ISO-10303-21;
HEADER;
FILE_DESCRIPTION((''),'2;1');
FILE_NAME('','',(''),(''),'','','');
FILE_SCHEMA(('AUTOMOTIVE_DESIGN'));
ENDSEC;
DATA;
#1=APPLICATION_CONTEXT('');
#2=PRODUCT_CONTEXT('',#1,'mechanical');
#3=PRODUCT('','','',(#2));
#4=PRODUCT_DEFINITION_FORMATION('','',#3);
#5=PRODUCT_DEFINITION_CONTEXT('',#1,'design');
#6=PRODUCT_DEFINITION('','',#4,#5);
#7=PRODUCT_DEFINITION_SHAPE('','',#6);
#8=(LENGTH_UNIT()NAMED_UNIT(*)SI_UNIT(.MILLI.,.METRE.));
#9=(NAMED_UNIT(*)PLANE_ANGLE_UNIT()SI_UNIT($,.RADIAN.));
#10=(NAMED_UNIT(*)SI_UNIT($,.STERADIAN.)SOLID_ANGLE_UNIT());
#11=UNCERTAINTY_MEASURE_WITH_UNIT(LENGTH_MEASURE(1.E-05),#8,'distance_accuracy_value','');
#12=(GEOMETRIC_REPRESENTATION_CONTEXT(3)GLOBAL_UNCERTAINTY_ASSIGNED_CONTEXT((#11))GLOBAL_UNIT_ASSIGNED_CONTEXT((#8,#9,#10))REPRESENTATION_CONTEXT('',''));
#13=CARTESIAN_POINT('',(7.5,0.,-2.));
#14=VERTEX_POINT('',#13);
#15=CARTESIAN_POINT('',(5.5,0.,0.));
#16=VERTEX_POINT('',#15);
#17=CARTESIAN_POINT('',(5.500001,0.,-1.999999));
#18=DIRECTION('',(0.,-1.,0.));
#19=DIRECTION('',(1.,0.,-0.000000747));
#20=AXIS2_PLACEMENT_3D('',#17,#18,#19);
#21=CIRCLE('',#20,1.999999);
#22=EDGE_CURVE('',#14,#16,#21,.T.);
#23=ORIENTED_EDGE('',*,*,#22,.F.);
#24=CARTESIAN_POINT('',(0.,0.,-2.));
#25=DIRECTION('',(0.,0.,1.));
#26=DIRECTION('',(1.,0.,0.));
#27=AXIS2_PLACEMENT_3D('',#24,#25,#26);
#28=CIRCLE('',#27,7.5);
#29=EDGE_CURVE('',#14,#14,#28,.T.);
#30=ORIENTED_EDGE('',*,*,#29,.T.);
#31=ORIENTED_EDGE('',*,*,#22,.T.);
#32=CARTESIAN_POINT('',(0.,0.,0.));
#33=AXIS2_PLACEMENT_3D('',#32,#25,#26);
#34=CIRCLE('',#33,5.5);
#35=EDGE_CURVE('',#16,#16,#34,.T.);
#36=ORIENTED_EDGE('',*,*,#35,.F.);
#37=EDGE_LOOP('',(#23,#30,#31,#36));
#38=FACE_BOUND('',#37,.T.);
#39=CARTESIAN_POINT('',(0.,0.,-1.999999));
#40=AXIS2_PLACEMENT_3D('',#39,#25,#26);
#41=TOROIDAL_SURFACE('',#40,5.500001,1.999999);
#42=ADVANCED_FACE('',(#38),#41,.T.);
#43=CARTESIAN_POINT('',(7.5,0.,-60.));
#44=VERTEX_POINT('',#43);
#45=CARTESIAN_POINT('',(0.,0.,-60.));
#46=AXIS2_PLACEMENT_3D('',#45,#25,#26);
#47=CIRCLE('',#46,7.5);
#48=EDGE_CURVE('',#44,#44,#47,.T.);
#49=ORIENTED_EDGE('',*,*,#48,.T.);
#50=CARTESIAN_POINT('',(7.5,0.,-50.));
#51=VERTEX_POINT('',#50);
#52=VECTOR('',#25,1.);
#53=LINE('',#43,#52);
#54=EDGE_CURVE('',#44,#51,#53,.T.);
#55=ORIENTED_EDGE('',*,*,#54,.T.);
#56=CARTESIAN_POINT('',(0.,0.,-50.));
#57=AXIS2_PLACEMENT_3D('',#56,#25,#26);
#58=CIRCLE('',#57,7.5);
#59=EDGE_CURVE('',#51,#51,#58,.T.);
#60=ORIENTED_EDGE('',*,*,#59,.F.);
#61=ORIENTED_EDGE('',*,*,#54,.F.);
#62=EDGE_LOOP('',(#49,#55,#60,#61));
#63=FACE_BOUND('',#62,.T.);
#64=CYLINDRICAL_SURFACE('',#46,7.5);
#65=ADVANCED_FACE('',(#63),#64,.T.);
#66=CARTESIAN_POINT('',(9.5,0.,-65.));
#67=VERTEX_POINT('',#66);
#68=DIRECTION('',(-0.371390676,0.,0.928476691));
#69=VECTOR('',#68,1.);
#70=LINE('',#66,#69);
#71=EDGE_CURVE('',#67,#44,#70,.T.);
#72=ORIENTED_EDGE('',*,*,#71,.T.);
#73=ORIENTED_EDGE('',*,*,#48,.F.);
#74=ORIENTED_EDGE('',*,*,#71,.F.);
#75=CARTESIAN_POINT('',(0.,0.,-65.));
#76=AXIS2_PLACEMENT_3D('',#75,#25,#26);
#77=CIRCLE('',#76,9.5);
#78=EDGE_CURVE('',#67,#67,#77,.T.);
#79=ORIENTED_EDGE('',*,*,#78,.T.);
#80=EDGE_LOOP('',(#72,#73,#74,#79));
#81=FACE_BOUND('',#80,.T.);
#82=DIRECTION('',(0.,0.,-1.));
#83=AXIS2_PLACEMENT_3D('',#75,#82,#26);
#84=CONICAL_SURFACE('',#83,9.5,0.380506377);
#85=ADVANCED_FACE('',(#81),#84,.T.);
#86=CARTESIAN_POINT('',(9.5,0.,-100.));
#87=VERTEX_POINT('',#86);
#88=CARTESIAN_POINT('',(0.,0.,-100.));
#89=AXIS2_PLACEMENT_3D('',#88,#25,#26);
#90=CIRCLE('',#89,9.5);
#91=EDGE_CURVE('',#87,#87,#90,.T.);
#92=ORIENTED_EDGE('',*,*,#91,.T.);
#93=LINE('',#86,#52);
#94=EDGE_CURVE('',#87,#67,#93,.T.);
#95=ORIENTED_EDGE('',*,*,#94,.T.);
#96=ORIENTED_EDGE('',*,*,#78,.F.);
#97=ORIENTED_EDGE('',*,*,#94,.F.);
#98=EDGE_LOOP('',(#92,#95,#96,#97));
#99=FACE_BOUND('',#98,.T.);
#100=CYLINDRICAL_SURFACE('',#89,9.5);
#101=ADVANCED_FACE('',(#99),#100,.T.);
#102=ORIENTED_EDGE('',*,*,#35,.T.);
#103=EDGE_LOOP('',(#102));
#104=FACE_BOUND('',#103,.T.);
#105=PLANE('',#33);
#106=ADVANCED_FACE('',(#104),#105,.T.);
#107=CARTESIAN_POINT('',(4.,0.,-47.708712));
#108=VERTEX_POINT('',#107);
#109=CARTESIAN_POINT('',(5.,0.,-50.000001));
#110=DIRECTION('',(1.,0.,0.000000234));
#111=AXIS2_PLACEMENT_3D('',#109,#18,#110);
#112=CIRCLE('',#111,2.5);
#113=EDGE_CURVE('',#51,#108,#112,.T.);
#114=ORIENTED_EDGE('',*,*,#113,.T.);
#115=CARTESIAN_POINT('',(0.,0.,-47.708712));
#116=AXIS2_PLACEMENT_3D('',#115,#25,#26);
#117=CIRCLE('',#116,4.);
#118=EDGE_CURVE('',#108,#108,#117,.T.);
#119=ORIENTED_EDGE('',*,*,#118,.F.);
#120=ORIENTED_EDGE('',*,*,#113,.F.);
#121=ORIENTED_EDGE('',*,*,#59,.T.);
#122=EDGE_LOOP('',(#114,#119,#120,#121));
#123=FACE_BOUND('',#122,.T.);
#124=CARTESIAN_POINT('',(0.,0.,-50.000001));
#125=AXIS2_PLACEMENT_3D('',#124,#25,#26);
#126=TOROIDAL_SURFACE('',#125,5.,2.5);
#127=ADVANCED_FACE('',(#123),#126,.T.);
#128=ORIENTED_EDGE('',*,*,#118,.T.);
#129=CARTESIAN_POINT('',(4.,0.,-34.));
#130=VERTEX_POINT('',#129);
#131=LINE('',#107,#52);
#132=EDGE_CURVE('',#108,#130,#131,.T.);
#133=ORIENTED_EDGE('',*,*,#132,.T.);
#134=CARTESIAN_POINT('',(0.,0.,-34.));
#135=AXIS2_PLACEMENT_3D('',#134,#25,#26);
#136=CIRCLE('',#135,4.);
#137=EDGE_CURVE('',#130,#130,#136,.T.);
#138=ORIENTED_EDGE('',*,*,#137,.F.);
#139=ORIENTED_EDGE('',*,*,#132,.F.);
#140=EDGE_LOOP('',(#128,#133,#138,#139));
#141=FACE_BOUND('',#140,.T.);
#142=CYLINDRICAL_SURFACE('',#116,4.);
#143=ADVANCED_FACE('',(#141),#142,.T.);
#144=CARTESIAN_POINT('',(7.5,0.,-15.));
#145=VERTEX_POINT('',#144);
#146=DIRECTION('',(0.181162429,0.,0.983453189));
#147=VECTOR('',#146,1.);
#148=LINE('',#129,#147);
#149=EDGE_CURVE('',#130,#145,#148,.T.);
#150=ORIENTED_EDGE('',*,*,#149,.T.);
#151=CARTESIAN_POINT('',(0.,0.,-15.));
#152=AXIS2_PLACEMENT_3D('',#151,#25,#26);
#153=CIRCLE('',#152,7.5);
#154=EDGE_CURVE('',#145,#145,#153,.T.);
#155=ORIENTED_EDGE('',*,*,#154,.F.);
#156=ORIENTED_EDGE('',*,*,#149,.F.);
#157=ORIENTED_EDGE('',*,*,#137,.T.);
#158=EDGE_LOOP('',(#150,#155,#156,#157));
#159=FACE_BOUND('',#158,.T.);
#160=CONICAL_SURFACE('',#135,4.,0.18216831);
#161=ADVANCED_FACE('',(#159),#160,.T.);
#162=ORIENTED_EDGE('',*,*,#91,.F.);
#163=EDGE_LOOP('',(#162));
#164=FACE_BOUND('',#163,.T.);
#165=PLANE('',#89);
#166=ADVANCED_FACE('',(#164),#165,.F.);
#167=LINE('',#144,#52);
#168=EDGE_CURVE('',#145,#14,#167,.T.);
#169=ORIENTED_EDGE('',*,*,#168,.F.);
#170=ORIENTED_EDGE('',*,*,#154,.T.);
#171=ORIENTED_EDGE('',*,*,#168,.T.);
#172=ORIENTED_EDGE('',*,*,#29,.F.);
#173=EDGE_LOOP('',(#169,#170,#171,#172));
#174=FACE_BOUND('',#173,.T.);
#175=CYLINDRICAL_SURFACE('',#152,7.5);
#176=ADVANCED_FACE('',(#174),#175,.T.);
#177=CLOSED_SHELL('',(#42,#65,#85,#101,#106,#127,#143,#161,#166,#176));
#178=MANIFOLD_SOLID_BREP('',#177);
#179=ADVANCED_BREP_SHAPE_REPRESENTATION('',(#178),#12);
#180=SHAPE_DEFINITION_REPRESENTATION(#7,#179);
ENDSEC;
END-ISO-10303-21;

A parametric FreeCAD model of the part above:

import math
import FreeCAD as App
import Part
import Sketcher
from FreeCAD import Vector
Q = App.Units.Quantity

doc = App.newDocument("Part")
body = doc.addObject("PartDesign::Body", "Body")

sketch1 = body.newObject("Sketcher::SketchObject", "Sketch")
sketch1.AttachmentSupport = (doc.getObject("XZ_Plane"), [""])
sketch1.MapMode = "FlatFace"
sketch1.addGeometry(Part.LineSegment(Vector(5.5, 0, 0), Vector(0, 0, 0)), False)
sketch1.addGeometry(Part.LineSegment(Vector(0, 0, 0), Vector(0, -100, 0)), False)
sketch1.addGeometry(Part.LineSegment(Vector(0, -100, 0), Vector(9.5, -100, 0)), False)
sketch1.addGeometry(Part.LineSegment(Vector(9.5, -100, 0), Vector(9.5, -65, 0)), False)
sketch1.addGeometry(Part.LineSegment(Vector(9.5, -65, 0), Vector(7.5, -60, 0)), False)
sketch1.addGeometry(Part.LineSegment(Vector(7.5, -60, 0), Vector(7.5, -50, 0)), False)
sketch1.addGeometry(Part.ArcOfCircle(Part.Circle(Vector(5, -50.000001, 0), Vector(0, 0, 1), 2.5), math.radians(0.000013), math.radians(113.578162)), False)
sketch1.addGeometry(Part.LineSegment(Vector(4, -47.708712, 0), Vector(4, -34, 0)), False)
sketch1.addGeometry(Part.LineSegment(Vector(4, -34, 0), Vector(7.5, -15, 0)), False)
sketch1.addGeometry(Part.LineSegment(Vector(7.5, -15, 0), Vector(7.5, -2, 0)), False)
sketch1.addGeometry(Part.ArcOfCircle(Part.Circle(Vector(5.500001, -1.999999, 0), Vector(0, 0, 1), 1.999999), math.radians(-0.000043), math.radians(90.000043)), False)
sketch1.addConstraint(Sketcher.Constraint("Coincident", 0, 2, 1, 1))
sketch1.addConstraint(Sketcher.Constraint("Coincident", 1, 2, 2, 1))
sketch1.addConstraint(Sketcher.Constraint("Coincident", 2, 2, 3, 1))
sketch1.addConstraint(Sketcher.Constraint("Coincident", 3, 2, 4, 1))
sketch1.addConstraint(Sketcher.Constraint("Coincident", 4, 2, 5, 1))
sketch1.addConstraint(Sketcher.Constraint("Tangent", 5, 2, 6, 1))
sketch1.addConstraint(Sketcher.Constraint("Coincident", 6, 2, 7, 1))
sketch1.addConstraint(Sketcher.Constraint("Coincident", 7, 2, 8, 1))
sketch1.addConstraint(Sketcher.Constraint("Coincident", 8, 2, 9, 1))
sketch1.addConstraint(Sketcher.Constraint("Tangent", 9, 2, 10, 1))
sketch1.addConstraint(Sketcher.Constraint("Tangent", 10, 2, 0, 1))
sketch1.addConstraint(Sketcher.Constraint("Horizontal", 0))
sketch1.addConstraint(Sketcher.Constraint("Vertical", 1))
sketch1.addConstraint(Sketcher.Constraint("Horizontal", 2))
sketch1.addConstraint(Sketcher.Constraint("Vertical", 3))
sketch1.addConstraint(Sketcher.Constraint("Vertical", 5))
sketch1.addConstraint(Sketcher.Constraint("Vertical", 7))
sketch1.addConstraint(Sketcher.Constraint("Vertical", 9))
sketch1.addConstraint(Sketcher.Constraint("Coincident", 0, 2, -1, 1))
sketch1.addConstraint(Sketcher.Constraint("Vertical", 5, 2, 8, 2))
sketch1.addConstraint(Sketcher.Constraint("Radius", 10, Q("1.999999 mm")))
sketch1.addConstraint(Sketcher.Constraint("Radius", 6, Q("2.5 mm")))
sketch1.addConstraint(Sketcher.Constraint("DistanceY", 1, 2, 1, 1, Q("100 mm")))
sketch1.addConstraint(Sketcher.Constraint("DistanceY", 3, 1, 3, 2, Q("35 mm")))
sketch1.addConstraint(Sketcher.Constraint("DistanceY", 5, 1, 5, 2, Q("10 mm")))
sketch1.addConstraint(Sketcher.Constraint("DistanceY", 9, 1, 9, 2, Q("13 mm")))
sketch1.addConstraint(Sketcher.Constraint("DistanceX", 0, 2, 0, 1, Q("5.5 mm")))
sketch1.addConstraint(Sketcher.Constraint("DistanceX", 2, 1, 2, 2, Q("9.5 mm")))
sketch1.addConstraint(Sketcher.Constraint("DistanceY", 6, 3, -1, 1, Q("50.000001 mm")))
sketch1.addConstraint(Sketcher.Constraint("DistanceX", -1, 1, 6, 2, Q("4 mm")))
sketch1.addConstraint(Sketcher.Constraint("DistanceY", 7, 2, -1, 1, Q("34 mm")))
revolution = body.newObject("PartDesign::Revolution", "Revolution")
revolution.Profile = sketch1
revolution.ReferenceAxis = (sketch1, ["V_Axis"])
revolution.Angle = 360

doc.recompute()
